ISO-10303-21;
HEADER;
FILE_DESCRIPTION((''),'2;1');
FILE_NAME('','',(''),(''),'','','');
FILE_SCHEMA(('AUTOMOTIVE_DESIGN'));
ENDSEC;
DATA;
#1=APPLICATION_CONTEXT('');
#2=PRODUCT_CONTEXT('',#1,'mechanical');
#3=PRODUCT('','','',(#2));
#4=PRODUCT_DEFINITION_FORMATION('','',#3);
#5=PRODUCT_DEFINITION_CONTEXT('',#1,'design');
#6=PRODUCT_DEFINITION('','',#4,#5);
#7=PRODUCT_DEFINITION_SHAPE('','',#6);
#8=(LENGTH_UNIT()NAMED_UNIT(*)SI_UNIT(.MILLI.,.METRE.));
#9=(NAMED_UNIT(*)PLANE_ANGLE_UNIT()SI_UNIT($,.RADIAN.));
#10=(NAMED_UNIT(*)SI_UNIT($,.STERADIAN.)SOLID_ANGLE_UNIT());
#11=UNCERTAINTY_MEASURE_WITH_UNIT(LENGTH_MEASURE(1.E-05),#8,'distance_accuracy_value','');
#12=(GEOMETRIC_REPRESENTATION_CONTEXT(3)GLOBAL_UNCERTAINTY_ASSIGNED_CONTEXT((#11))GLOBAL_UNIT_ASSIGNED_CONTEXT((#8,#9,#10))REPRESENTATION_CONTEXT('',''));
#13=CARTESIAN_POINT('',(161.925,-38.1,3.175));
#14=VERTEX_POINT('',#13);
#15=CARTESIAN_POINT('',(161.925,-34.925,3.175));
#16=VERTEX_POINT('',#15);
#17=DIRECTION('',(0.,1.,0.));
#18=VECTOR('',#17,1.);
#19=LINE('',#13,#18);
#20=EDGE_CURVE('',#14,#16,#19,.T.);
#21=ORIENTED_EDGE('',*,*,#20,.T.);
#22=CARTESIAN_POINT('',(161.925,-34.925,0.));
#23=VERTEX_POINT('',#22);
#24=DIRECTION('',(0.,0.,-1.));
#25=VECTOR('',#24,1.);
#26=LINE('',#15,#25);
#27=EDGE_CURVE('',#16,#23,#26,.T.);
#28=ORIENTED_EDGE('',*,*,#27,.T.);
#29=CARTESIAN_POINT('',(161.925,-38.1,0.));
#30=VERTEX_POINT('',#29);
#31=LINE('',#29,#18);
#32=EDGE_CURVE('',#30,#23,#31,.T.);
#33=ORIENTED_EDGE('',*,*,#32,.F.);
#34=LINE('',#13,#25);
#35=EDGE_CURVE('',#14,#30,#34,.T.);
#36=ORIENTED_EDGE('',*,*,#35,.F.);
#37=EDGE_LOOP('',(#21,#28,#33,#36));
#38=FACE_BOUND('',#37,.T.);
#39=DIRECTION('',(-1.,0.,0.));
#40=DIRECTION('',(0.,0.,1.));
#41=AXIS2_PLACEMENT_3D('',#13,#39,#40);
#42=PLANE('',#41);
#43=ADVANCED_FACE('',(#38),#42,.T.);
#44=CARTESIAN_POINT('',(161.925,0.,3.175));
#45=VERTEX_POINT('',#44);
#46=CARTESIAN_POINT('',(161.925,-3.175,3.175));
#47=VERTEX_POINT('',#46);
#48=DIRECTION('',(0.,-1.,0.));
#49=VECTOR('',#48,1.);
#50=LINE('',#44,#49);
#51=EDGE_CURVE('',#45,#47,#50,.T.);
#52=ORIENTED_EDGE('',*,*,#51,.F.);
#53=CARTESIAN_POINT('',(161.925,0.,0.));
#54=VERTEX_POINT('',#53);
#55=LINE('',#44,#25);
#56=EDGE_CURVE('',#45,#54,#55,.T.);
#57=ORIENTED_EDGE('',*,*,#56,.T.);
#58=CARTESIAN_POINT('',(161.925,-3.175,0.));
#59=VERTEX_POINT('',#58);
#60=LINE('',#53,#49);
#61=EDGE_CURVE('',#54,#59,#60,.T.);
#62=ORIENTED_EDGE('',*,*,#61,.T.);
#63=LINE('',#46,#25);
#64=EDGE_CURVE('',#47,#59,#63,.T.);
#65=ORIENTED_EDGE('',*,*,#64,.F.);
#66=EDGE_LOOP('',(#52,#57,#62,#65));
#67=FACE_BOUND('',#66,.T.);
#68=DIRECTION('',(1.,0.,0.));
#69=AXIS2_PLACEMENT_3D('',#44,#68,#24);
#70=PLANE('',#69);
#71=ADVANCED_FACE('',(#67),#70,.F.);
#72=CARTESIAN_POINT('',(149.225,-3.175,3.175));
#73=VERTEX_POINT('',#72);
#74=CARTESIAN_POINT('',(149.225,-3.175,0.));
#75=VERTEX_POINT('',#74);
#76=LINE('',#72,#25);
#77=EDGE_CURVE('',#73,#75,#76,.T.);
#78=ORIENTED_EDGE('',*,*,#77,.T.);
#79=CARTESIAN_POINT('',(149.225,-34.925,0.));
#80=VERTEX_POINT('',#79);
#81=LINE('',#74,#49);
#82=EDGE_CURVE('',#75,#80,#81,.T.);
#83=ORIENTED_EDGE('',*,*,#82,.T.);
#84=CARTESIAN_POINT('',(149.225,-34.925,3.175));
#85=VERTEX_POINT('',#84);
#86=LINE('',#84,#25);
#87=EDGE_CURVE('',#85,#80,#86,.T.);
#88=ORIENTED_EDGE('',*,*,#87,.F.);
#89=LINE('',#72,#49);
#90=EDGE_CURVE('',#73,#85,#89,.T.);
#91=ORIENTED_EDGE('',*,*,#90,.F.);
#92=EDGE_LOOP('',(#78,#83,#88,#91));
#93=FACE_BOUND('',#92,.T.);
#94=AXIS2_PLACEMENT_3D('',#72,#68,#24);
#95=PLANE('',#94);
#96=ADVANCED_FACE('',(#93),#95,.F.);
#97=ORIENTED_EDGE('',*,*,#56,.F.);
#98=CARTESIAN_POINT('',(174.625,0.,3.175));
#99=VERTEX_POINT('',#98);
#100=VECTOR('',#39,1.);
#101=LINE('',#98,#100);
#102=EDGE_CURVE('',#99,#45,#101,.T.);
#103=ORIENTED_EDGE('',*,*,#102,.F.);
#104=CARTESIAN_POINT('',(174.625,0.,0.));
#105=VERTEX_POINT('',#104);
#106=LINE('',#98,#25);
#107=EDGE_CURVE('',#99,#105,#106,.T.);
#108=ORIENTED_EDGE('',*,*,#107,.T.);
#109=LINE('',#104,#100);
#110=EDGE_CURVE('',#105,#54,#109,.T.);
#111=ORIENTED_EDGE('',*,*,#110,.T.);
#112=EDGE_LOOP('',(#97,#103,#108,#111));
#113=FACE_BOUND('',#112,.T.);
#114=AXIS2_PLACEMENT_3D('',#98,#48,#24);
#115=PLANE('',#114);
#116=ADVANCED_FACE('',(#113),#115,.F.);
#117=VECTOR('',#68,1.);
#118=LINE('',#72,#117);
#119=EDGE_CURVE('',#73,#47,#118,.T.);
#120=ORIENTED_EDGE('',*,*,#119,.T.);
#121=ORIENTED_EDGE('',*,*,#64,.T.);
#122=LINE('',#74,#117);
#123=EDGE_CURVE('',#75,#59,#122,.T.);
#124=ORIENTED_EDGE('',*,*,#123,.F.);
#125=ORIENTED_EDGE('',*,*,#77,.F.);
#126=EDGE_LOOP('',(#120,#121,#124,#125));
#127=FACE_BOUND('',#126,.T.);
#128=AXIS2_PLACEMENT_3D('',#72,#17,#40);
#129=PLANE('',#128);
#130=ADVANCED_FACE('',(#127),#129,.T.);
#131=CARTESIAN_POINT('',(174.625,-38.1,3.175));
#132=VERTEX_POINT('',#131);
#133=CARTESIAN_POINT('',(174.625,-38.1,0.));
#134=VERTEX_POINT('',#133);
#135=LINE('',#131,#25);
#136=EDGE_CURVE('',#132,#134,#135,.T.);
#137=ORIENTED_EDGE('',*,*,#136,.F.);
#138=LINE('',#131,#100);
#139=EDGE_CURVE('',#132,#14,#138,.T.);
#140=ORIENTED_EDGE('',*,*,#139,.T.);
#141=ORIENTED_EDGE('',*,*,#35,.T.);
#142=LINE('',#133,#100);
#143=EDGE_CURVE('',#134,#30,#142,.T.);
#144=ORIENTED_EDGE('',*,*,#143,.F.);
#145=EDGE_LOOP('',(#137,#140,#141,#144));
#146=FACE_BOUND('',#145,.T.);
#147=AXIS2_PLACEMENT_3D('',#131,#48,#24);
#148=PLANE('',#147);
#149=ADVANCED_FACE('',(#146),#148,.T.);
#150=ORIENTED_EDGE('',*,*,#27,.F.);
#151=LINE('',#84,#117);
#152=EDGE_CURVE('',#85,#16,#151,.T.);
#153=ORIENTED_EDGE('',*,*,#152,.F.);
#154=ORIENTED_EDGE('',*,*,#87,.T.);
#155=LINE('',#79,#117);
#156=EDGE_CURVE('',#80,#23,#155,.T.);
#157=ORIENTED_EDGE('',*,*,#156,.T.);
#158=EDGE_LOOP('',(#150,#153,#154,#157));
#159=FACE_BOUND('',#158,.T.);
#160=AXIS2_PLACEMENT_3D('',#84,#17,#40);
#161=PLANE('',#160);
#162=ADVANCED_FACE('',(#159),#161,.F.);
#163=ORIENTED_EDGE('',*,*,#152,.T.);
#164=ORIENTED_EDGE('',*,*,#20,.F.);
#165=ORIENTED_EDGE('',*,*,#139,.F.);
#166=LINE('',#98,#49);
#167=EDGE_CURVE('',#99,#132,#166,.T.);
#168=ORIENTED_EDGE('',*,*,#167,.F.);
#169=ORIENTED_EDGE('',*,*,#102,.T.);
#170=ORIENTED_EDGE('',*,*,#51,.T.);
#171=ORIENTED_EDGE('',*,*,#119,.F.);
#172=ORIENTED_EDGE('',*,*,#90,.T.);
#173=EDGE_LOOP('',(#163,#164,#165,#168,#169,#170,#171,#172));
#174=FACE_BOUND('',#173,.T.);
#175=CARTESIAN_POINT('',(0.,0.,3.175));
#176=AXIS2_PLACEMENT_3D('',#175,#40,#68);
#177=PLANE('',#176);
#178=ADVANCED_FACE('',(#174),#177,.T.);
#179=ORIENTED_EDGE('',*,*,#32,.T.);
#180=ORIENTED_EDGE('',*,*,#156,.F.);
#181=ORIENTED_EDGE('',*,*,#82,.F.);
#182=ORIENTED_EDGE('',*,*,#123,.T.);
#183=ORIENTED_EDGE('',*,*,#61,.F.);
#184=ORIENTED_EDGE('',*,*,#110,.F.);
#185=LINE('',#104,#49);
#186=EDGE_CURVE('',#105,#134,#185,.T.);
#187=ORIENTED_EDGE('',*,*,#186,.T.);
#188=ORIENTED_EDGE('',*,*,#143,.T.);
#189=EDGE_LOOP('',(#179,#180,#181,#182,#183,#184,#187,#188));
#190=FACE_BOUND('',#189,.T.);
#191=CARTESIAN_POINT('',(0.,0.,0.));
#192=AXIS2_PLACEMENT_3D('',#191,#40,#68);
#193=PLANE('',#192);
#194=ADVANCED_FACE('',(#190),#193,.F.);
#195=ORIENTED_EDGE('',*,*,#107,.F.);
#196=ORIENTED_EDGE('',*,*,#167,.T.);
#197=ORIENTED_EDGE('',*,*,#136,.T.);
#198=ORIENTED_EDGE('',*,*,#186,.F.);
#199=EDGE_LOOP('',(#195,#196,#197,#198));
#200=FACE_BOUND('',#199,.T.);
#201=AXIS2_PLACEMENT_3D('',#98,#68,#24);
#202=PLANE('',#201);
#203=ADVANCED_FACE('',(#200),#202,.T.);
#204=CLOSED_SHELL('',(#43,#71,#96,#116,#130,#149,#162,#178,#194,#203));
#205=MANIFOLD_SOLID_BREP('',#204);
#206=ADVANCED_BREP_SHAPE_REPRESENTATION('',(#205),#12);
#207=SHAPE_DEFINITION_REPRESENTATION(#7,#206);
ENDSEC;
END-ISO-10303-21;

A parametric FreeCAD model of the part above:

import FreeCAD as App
import Part
import Sketcher

V = App.Vector
Q = App.Units.Quantity

doc = App.newDocument("Part")
params = doc.addObject("Spreadsheet::Sheet", "Params")
for row, (alias, value) in enumerate([
    ("sketch1_width", "0.5 in"),
    ("sketch1_height", "1.5 in"),
    ("sketch1_height2", "1.25 in"),
    ("pad1_length", "0.125 in"),
], start=1):
    params.set(f"A{row}", alias)
    params.set(f"B{row}", "=" + value)
    params.setAlias(f"B{row}", alias)

body = doc.addObject("PartDesign::Body", "Body")

sketch1 = body.newObject("Sketcher::SketchObject", "Sketch")
sketch1.AttachmentSupport = (doc.getObject("XY_Plane"), [""])
sketch1.MapMode = "FlatFace"
sketch1.addGeometry(Part.LineSegment(V(174.6, 0, 0), V(161.9, 0, 0)), False)
sketch1.addGeometry(Part.LineSegment(V(161.9, 0, 0), V(161.9, -3.2, 0)), False)
sketch1.addGeometry(Part.LineSegment(V(161.9, -3.2, 0), V(149.2, -3.2, 0)), False)
sketch1.addGeometry(Part.LineSegment(V(149.2, -3.2, 0), V(149.2, -34.9, 0)), False)
sketch1.addGeometry(Part.LineSegment(V(149.2, -34.9, 0), V(161.9, -34.9, 0)), False)
sketch1.addGeometry(Part.LineSegment(V(161.9, -34.9, 0), V(161.9, -38.1, 0)), False)
sketch1.addGeometry(Part.LineSegment(V(161.9, -38.1, 0), V(174.6, -38.1, 0)), False)
sketch1.addGeometry(Part.LineSegment(V(174.6, -38.1, 0), V(174.6, 0, 0)), False)
sketch1.addConstraint(Sketcher.Constraint("Coincident", 0, 2, 1, 1))
sketch1.addConstraint(Sketcher.Constraint("Coincident", 1, 2, 2, 1))
sketch1.addConstraint(Sketcher.Constraint("Coincident", 2, 2, 3, 1))
sketch1.addConstraint(Sketcher.Constraint("Coincident", 3, 2, 4, 1))
sketch1.addConstraint(Sketcher.Constraint("Coincident", 4, 2, 5, 1))
sketch1.addConstraint(Sketcher.Constraint("Coincident", 5, 2, 6, 1))
sketch1.addConstraint(Sketcher.Constraint("Coincident", 6, 2, 7, 1))
sketch1.addConstraint(Sketcher.Constraint("Coincident", 7, 2, 0, 1))
sketch1.addConstraint(Sketcher.Constraint("Horizontal", 0))
sketch1.addConstraint(Sketcher.Constraint("Vertical", 1))
sketch1.addConstraint(Sketcher.Constraint("Horizontal", 2))
sketch1.addConstraint(Sketcher.Constraint("Vertical", 3))
sketch1.addConstraint(Sketcher.Constraint("Horizontal", 4))
sketch1.addConstraint(Sketcher.Constraint("Vertical", 5))
sketch1.addConstraint(Sketcher.Constraint("Horizontal", 6))
sketch1.addConstraint(Sketcher.Constraint("Vertical", 7))
sketch1.addConstraint(Sketcher.Constraint("PointOnObject", 0, 2, -1))
sketch1.addConstraint(Sketcher.Constraint("Vertical", 1, 2, 4, 2))
sketch1.addConstraint(Sketcher.Constraint("Equal", 0, 2))
sketch1.addConstraint(Sketcher.Constraint("Equal", 1, 5))
sketch1.addConstraint(Sketcher.Constraint("DistanceX", 0, 2, 0, 1, Q("0.5 in")))
sketch1.addConstraint(Sketcher.Constraint("DistanceY", 7, 1, 7, 2, Q("1.5 in")))
sketch1.addConstraint(Sketcher.Constraint("DistanceY", 3, 2, 3, 1, Q("1.25 in")))
sketch1.addConstraint(Sketcher.Constraint("DistanceX", -1, 1, 0, 2, Q("6.375 in")))
sketch1.setExpression("Constraints[20]", "Params.sketch1_width")
sketch1.setExpression("Constraints[21]", "Params.sketch1_height")
sketch1.setExpression("Constraints[22]", "Params.sketch1_height2")
pad1 = body.newObject("PartDesign::Pad", "Pad")
pad1.Profile = sketch1
pad1.setExpression("Length", "Params.pad1_length")

doc.recompute()
